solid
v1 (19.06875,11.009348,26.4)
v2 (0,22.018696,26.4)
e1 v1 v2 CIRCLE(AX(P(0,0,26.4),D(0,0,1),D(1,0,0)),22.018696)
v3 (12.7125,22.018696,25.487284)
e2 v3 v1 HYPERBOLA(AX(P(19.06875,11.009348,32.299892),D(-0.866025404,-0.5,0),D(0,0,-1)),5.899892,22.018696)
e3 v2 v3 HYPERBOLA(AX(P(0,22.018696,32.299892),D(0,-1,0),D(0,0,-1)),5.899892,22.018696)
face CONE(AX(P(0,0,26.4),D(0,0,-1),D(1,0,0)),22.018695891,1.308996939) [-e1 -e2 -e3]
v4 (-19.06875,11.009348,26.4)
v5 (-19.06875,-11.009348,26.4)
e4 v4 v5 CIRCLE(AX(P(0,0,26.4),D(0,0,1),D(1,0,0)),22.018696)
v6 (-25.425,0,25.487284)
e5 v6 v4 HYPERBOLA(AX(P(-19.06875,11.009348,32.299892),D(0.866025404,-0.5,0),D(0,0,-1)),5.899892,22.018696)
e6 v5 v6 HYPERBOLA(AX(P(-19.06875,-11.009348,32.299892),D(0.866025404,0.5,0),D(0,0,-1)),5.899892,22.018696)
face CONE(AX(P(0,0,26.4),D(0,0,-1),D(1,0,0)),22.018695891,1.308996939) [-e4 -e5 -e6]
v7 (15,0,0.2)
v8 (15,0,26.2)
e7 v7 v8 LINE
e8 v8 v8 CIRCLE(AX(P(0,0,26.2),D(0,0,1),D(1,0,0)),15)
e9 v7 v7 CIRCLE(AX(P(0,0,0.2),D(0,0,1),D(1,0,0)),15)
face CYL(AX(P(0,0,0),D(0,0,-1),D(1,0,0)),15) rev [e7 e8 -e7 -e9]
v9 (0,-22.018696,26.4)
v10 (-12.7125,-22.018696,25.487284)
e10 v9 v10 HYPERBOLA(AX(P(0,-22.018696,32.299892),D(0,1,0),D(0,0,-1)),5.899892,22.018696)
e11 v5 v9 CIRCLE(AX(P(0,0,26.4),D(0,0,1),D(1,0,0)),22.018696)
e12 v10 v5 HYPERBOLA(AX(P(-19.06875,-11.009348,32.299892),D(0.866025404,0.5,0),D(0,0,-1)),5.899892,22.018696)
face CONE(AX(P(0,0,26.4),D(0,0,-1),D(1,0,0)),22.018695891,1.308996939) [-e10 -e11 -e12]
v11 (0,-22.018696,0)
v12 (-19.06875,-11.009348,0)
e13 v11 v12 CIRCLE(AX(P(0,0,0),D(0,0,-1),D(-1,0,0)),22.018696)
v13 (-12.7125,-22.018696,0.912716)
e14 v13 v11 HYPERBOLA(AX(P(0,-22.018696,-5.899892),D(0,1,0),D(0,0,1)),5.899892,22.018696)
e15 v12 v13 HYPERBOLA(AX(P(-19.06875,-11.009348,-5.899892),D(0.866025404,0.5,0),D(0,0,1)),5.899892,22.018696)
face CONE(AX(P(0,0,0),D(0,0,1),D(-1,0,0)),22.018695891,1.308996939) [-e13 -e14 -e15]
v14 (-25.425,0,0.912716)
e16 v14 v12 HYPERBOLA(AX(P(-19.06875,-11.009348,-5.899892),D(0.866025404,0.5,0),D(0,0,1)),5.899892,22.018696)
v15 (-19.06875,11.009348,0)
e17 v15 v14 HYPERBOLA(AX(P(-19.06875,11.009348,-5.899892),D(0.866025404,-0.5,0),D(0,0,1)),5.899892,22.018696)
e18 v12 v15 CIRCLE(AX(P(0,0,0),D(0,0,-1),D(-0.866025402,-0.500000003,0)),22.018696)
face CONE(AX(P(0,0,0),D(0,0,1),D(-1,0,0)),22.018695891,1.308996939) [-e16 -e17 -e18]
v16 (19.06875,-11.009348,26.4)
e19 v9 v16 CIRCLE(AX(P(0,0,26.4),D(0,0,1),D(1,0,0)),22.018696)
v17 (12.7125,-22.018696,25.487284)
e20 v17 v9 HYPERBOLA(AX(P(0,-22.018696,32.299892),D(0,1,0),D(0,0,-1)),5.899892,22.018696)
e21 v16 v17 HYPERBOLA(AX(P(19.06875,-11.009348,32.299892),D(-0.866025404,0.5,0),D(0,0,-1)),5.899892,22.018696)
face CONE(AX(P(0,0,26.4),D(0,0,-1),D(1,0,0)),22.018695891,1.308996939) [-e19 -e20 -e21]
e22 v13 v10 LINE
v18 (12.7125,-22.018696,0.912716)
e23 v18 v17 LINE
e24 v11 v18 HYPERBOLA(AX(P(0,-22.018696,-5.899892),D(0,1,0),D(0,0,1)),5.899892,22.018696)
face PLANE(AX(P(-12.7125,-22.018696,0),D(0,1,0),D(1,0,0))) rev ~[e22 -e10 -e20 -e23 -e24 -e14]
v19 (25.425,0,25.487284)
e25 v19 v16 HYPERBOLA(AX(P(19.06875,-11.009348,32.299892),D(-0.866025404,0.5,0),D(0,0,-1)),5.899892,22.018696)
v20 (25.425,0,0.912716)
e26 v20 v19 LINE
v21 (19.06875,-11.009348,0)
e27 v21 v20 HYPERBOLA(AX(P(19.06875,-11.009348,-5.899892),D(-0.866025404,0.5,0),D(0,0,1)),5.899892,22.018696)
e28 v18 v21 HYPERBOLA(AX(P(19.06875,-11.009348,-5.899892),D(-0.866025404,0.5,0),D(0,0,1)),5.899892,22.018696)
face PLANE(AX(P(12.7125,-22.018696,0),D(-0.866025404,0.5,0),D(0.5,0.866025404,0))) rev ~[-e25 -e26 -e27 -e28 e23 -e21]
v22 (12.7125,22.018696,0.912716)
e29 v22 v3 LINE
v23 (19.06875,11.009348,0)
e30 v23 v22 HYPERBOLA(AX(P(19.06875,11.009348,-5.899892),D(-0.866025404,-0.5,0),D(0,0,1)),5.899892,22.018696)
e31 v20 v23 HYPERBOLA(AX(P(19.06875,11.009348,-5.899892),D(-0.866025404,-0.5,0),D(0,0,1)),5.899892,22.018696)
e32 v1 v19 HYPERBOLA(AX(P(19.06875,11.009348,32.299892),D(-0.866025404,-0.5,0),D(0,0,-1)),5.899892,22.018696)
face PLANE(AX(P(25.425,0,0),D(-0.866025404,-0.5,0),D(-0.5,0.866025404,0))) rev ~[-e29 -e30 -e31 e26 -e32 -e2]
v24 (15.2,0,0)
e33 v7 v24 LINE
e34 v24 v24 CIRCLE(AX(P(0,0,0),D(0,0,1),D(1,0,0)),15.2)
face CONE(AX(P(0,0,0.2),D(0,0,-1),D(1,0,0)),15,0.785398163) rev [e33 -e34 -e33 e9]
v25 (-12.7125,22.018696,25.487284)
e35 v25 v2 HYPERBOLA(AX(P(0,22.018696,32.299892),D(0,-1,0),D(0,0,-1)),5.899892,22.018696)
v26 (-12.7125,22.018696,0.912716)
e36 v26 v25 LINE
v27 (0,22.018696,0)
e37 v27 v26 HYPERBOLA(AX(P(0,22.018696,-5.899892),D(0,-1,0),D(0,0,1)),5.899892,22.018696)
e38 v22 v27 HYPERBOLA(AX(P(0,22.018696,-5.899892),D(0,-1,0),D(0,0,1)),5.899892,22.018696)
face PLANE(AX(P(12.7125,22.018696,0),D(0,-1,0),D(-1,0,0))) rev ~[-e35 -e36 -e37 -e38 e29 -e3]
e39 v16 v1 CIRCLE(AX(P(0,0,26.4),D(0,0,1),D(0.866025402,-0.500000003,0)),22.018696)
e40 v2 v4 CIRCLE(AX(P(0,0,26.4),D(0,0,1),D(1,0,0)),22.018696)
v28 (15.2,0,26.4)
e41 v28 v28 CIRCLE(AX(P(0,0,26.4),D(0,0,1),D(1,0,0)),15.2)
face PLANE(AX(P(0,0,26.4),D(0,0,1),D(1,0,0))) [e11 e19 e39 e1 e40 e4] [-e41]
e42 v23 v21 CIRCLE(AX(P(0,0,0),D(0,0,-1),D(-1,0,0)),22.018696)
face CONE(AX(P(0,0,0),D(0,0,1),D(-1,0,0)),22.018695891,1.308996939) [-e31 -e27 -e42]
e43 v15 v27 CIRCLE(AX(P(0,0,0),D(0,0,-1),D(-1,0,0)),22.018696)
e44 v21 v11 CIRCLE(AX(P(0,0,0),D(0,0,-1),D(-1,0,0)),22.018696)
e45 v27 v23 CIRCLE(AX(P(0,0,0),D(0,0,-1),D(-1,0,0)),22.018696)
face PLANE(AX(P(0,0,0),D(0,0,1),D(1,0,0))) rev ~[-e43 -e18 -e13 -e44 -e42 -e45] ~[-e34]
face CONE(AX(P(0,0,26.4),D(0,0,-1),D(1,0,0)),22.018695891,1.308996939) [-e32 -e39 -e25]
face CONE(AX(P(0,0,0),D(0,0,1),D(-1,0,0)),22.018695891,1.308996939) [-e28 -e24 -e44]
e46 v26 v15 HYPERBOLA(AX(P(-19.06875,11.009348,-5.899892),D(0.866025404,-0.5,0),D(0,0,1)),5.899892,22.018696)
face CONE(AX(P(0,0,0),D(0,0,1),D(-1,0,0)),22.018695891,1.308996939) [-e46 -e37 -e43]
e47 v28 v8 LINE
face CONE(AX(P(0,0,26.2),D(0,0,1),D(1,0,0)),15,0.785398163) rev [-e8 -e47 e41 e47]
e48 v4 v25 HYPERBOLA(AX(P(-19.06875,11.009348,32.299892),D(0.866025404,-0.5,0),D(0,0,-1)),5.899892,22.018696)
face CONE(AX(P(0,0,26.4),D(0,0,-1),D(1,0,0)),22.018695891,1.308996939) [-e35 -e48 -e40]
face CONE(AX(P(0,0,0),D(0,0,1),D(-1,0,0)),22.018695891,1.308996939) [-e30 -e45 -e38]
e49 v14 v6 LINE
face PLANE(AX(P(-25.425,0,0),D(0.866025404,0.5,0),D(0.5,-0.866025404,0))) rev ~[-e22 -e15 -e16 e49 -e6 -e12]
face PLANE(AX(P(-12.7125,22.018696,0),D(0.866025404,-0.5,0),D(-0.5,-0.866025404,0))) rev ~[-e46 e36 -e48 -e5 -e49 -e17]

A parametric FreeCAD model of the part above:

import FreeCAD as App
import Part
import Sketcher
from FreeCAD import Vector
Q = App.Units.Quantity


def edges_at(feature, points):
    """Names of the edges that pass closest to the given points."""
    edges = feature.Shape.Edges
    near = lambda p: min(range(len(edges)), key=lambda i: edges[i].distToShape(Part.Vertex(*p))[0])
    return sorted({f"Edge{near(p) + 1}" for p in points})


def faces_at(feature, points):
    """Names of the faces that lie closest to the given points."""
    faces = feature.Shape.Faces
    near = lambda p: min(range(len(faces)), key=lambda i: faces[i].distToShape(Part.Vertex(*p))[0])
    return sorted({f"Face{near(p) + 1}" for p in points})

doc = App.newDocument("Part")
params = doc.addObject("Spreadsheet::Sheet", "Params")
for row, (alias, value) in enumerate([
    ("sketch1_diameter", "30 mm"),
    ("pad1_length", "26.4 mm"),
    ("pad2_length", "38 mm"),
    ("draft_angle", "75 deg"),
    ("pad3_length", "38 mm"),
    ("draft2_angle", "75 deg"),
    ("chamfer_size", "0.2 mm"),
], start=1):
    params.set(f"A{row}", alias)
    params.set(f"B{row}", "=" + value)
    params.setAlias(f"B{row}", alias)

body = doc.addObject("PartDesign::Body", "Body")

# Sketch on XY plane
sketch1 = body.newObject("Sketcher::SketchObject", "Sketch")
sketch1.AttachmentSupport = (doc.getObject("XY_Plane"), [""])
sketch1.MapMode = "FlatFace"
sketch1.addGeometry([
    Part.LineSegment(Vector(12.7125, 22.018696, 0), Vector(-12.7125, 22.018696, 0)),  # 0
    Part.LineSegment(Vector(-12.7125, 22.018696, 0), Vector(-25.425, 0, 0)),  # 1
    Part.LineSegment(Vector(-25.425, 0, 0), Vector(-12.7125, -22.018696, 0)),  # 2
    Part.LineSegment(Vector(-12.7125, -22.018696, 0), Vector(12.7125, -22.018696, 0)),  # 3
    Part.LineSegment(Vector(12.7125, -22.018696, 0), Vector(25.425, 0, 0)),  # 4
    Part.LineSegment(Vector(25.425, 0, 0), Vector(12.7125, 22.018696, 0)),  # 5
    Part.Circle(Vector(0, 0, 0), Vector(0, 0, 1), 15),  # 6
], False)
sketch1.addConstraint([
    Sketcher.Constraint("Coincident", 0, 2, 1, 1),
    Sketcher.Constraint("Coincident", 1, 2, 2, 1),
    Sketcher.Constraint("Coincident", 2, 2, 3, 1),
    Sketcher.Constraint("Coincident", 3, 2, 4, 1),
    Sketcher.Constraint("Coincident", 4, 2, 5, 1),
    Sketcher.Constraint("Coincident", 5, 2, 0, 1),
    Sketcher.Constraint("Horizontal", 0),
    Sketcher.Constraint("Horizontal", 3),
    Sketcher.Constraint("Coincident", 6, 3, -1, 1),
    Sketcher.Constraint("Symmetric", 0, 2, 3, 2, -1, 1),
    Sketcher.Constraint("Symmetric", 1, 2, 4, 2, -1, 1),
    Sketcher.Constraint("PointOnObject", 1, 2, -1),
    Sketcher.Constraint("Parallel", 2, 5),
    Sketcher.Constraint("Vertical", 0, 2, 2, 2),
    Sketcher.Constraint("Diameter", 6, Q("30 mm")),
    Sketcher.Constraint("Angle", 1, Q("-120 deg")),
    Sketcher.Constraint("DistanceX", 0, 2, 0, 1, Q("25.425 mm")),
    Sketcher.Constraint("DistanceX", 1, 2, 4, 2, Q("50.85 mm")),
])
sketch1.setExpression("Constraints[14]", "Params.sketch1_diameter")
pad1 = body.newObject("PartDesign::Pad", "Pad")
pad1.Profile = sketch1
pad1.setExpression("Length", "Params.pad1_length")
body2 = doc.addObject("PartDesign::Body", "Body001")

# Sketch on XY plane
sketch2 = body2.newObject("Sketcher::SketchObject", "Sketch001")
sketch2.AttachmentSupport = (doc.getObject("XY_Plane001"), [""])
sketch2.MapMode = "FlatFace"
sketch2.addGeometry([
    Part.LineSegment(Vector(175.469, 172.063, 0), Vector(175.469, -172.063, 0)),  # 0
    Part.LineSegment(Vector(175.469, -172.063, 0), Vector(-175.469, -172.063, 0)),  # 1
    Part.LineSegment(Vector(-175.469, -172.063, 0), Vector(-175.469, 172.063, 0)),  # 2
    Part.LineSegment(Vector(-175.469, 172.063, 0), Vector(175.469, 172.063, 0)),  # 3
    Part.Circle(Vector(0, 0, 0), Vector(0, 0, 1), 22.018696),  # 4
], False)
sketch2.addConstraint([
    Sketcher.Constraint("Coincident", 0, 2, 1, 1),
    Sketcher.Constraint("Coincident", 1, 2, 2, 1),
    Sketcher.Constraint("Coincident", 2, 2, 3, 1),
    Sketcher.Constraint("Coincident", 3, 2, 0, 1),
    Sketcher.Constraint("Vertical", 0),
    Sketcher.Constraint("Horizontal", 1),
    Sketcher.Constraint("Vertical", 2),
    Sketcher.Constraint("Horizontal", 3),
    Sketcher.Constraint("Coincident", 4, 3, -1, 1),
    Sketcher.Constraint("Symmetric", 0, 2, 2, 2, -1, 1),
    Sketcher.Constraint("Diameter", 4, Q("44.037392 mm")),
    Sketcher.Constraint("DistanceX", 1, 2, 1, 1, Q("350.938 mm")),
    Sketcher.Constraint("DistanceY", 0, 2, 0, 1, Q("344.126 mm")),
])
pad2 = body2.newObject("PartDesign::Pad", "Pad001")
pad2.Profile = sketch2
pad2.setExpression("Length", "Params.pad2_length")
doc.recompute()

draft = body2.newObject("PartDesign::Draft", "Draft")
draft.Base = (pad2, faces_at(pad2, [
    (0, -172.063, 19),
    (-175.469, 0, 19),
    (0, 172.063, 19),
    (175.469, 0, 19),
    (22.019, 0, 19),
]))
draft.NeutralPlane = (doc.getObject("XY_Plane001"), [""])
draft.setExpression("Angle", "Params.draft_angle")
draft.Reversed = False
doc.recompute()

boolean = body.newObject("PartDesign::Boolean", "Boolean")
boolean.Type = "Cut"
boolean.addObjects([body2])
body3 = doc.addObject("PartDesign::Body", "Body002")

# Sketch on XY plane
sketch3 = body3.newObject("Sketcher::SketchObject", "Sketch002")
sketch3.AttachmentSupport = (doc.getObject("XY_Plane002"), [""])
sketch3.MapMode = "FlatFace"
sketch3.AttachmentOffset = App.Placement(Vector(0, 0, 26.4), App.Rotation())
sketch3.addGeometry([
    Part.LineSegment(Vector(-175.469, 172.063, 0), Vector(-175.469, -172.063, 0)),  # 0
    Part.LineSegment(Vector(-175.469, -172.063, 0), Vector(175.469, -172.063, 0)),  # 1
    Part.LineSegment(Vector(175.469, -172.063, 0), Vector(175.469, 172.063, 0)),  # 2
    Part.LineSegment(Vector(175.469, 172.063, 0), Vector(-175.469, 172.063, 0)),  # 3
    Part.Circle(Vector(0, 0, 0), Vector(0, 0, 1), 22.018696),  # 4
], False)
sketch3.addConstraint([
    Sketcher.Constraint("Coincident", 0, 2, 1, 1),
    Sketcher.Constraint("Coincident", 1, 2, 2, 1),
    Sketcher.Constraint("Coincident", 2, 2, 3, 1),
    Sketcher.Constraint("Coincident", 3, 2, 0, 1),
    Sketcher.Constraint("Vertical", 0),
    Sketcher.Constraint("Horizontal", 1),
    Sketcher.Constraint("Vertical", 2),
    Sketcher.Constraint("Horizontal", 3),
    Sketcher.Constraint("Coincident", 4, 3, -1, 1),
    Sketcher.Constraint("Symmetric", 0, 2, 2, 2, -1, 1),
    Sketcher.Constraint("Diameter", 4, Q("44.037392 mm")),
    Sketcher.Constraint("DistanceX", 1, 1, 1, 2, Q("350.938 mm")),
    Sketcher.Constraint("DistanceY", 0, 2, 0, 1, Q("344.126 mm")),
])
pad3 = body3.newObject("PartDesign::Pad", "Pad002")
pad3.Profile = sketch3
pad3.setExpression("Length", "Params.pad3_length")
pad3.Reversed = True
doc.recompute()

datumplane = body3.newObject("PartDesign::Plane", "DatumPlane")
datumplane.AttachmentSupport = (doc.getObject("XY_Plane002"), [""])
datumplane.MapMode = "FlatFace"
datumplane.AttachmentOffset = App.Placement(Vector(0, 0, 26.4), App.Rotation())
draft2 = body3.newObject("PartDesign::Draft", "Draft001")
draft2.Base = (pad3, faces_at(pad3, [
    (0, -172.063, 7.4),
    (175.469, 0, 7.4),
    (0, 172.063, 7.4),
    (-175.469, 0, 7.4),
    (-22.019, 0, 7.4),
]))
draft2.NeutralPlane = (datumplane, [""])
draft2.setExpression("Angle", "Params.draft2_angle")
draft2.Reversed = True
doc.recompute()

boolean2 = body.newObject("PartDesign::Boolean", "Boolean001")
boolean2.Type = "Cut"
boolean2.addObjects([body3])
doc.recompute()

chamfer = body.newObject("PartDesign::Chamfer", "Chamfer")
chamfer.Base = (boolean2, edges_at(boolean2, [(-15, 0, 0), (-15, 0, 26.4)]))
chamfer.setExpression("Size", "Params.chamfer_size")

doc.recompute()
